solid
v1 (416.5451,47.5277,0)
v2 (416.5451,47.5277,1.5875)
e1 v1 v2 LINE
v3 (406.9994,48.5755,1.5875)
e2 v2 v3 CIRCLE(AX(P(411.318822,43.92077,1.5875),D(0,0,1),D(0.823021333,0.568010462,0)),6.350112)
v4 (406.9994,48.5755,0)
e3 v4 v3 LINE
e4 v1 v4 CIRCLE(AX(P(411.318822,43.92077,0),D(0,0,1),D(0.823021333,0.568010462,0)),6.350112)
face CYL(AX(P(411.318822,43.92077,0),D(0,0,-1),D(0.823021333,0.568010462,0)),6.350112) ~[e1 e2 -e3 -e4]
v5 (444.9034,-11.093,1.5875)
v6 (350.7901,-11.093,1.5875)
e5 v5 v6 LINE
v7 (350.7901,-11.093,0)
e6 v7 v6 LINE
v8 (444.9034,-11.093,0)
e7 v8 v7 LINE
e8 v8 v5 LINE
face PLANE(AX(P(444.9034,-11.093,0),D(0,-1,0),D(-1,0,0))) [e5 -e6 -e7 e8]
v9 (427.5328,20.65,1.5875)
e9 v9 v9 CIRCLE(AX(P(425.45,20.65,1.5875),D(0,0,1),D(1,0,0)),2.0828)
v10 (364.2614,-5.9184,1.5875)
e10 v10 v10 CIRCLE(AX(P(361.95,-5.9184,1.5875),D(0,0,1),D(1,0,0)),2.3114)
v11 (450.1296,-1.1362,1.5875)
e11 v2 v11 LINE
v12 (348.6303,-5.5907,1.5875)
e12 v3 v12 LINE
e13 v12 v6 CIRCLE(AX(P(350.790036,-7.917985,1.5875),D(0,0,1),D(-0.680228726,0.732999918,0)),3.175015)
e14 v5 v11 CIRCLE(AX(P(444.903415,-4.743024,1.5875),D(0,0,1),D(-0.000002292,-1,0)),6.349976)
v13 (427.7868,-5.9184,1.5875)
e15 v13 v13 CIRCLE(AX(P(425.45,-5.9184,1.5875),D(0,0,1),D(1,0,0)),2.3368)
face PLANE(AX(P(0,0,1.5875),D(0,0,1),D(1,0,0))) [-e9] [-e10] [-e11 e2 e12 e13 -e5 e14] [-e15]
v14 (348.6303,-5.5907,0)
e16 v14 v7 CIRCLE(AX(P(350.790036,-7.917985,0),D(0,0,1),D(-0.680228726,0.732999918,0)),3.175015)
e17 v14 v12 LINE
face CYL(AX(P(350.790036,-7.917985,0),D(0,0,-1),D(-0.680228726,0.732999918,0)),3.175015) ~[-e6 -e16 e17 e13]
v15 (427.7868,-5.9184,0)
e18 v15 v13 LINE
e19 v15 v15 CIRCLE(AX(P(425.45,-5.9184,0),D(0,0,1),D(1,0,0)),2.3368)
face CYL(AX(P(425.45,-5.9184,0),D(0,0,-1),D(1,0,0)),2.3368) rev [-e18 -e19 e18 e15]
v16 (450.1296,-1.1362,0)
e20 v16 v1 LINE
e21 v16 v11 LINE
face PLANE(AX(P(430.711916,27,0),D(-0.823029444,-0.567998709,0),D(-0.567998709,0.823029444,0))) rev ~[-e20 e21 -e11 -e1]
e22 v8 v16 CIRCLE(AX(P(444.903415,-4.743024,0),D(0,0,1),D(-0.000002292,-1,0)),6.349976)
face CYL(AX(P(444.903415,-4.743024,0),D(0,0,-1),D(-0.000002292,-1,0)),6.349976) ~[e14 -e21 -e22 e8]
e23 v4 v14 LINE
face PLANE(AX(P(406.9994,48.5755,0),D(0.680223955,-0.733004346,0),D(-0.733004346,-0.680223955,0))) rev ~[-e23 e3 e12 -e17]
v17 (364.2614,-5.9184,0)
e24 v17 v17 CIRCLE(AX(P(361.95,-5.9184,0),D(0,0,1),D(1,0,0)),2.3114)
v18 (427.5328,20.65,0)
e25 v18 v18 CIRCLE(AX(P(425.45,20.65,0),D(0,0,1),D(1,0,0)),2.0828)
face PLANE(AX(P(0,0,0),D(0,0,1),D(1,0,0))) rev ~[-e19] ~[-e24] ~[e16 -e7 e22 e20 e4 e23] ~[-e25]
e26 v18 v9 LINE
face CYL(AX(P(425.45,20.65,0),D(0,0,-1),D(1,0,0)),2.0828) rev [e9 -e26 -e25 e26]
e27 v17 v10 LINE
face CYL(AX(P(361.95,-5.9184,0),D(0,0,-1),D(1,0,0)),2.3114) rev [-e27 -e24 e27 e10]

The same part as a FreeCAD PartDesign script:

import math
import FreeCAD as App
import Part
import Sketcher

V = App.Vector
Q = App.Units.Quantity

doc = App.newDocument("Part")
body = doc.addObject("PartDesign::Body", "Body")

# Sketch on XY plane
sketch1 = doc.addObject("Sketcher::SketchObject", "Sketch")
body.addObject(sketch1)
sketch1.AttachmentSupport = (doc.XY_Plane, [""])
sketch1.MapMode = "FlatFace"
sketch1.addGeometry([
    Part.ArcOfCircle(Part.Circle(V(411.3, 43.9, 0), V(0, 0, 1), 6.3), math.radians(35), math.radians(133)),  # 0
    Part.LineSegment(V(407, 48.6, 0), V(348.6, -5.6, 0)),  # 1
    Part.ArcOfCircle(Part.Circle(V(350.8, -7.9, 0), V(0, 0, 1), 3.2), math.radians(133), math.radians(270)),  # 2
    Part.LineSegment(V(350.8, -11.1, 0), V(444.9, -11.1, 0)),  # 3
    Part.ArcOfCircle(Part.Circle(V(444.9, -4.7, 0), V(0, 0, 1), 6.3), math.radians(-90), math.radians(35)),  # 4
    Part.LineSegment(V(450.1, -1.1, 0), V(416.5, 47.5, 0)),  # 5
    Part.Circle(V(361.9, -5.9, 0), V(0, 0, 1), 2.3),  # 6
    Part.Circle(V(425.4, 20.6, 0), V(0, 0, 1), 2.1),  # 7
], False)
sketch1.addConstraint([
    Sketcher.Constraint("Tangent", 0, 2, 1, 1),
    Sketcher.Constraint("Tangent", 1, 2, 2, 1),
    Sketcher.Constraint("Tangent", 2, 2, 3, 1),
    Sketcher.Constraint("Tangent", 3, 2, 4, 1),
    Sketcher.Constraint("Tangent", 4, 2, 5, 1),
    Sketcher.Constraint("Tangent", 5, 2, 0, 1),
    Sketcher.Constraint("Horizontal", 3),
    Sketcher.Constraint("Equal", 0, 4),
    Sketcher.Constraint("Radius", 0, Q("0.25 in")),
    Sketcher.Constraint("Radius", 2, Q("0.125 in")),
    Sketcher.Constraint("Diameter", 6, Q("0.182 in")),
    Sketcher.Constraint("Diameter", 7, Q("0.164 in")),
    Sketcher.Constraint("DistanceX", 6, 3, 7, 3, Q("2.5 in")),
    Sketcher.Constraint("DistanceX", -1, 1, 6, 3, Q("14.25 in")),
    Sketcher.Constraint("Angle", 1, Q("-137.1389 deg")),
    Sketcher.Constraint("Angle", 5, Q("124.6108 deg")),
    Sketcher.Constraint("DistanceY", 2, 2, 6, 3, Q("5.1747 mm")),
    Sketcher.Constraint("DistanceY", 6, 3, -1, 1, Q("0.233 in")),
    Sketcher.Constraint("DistanceY", -1, 1, 7, 3, Q("0.813 in")),
    Sketcher.Constraint("DistanceX", 1, 2, 0, 2, Q("2.298 in")),
    Sketcher.Constraint("DistanceX", -1, 1, 0, 2, Q("16.0236 in")),
])
pad1 = doc.addObject("PartDesign::Pad", "Pad")
body.addObject(pad1)
pad1.Profile = sketch1
pad1.Length = Q("0.0625 in")

# Sketch on XY plane
sketch2 = doc.addObject("Sketcher::SketchObject", "Sketch001")
body.addObject(sketch2)
sketch2.AttachmentSupport = (doc.XY_Plane, [""])
sketch2.MapMode = "FlatFace"
sketch2.addGeometry(Part.Circle(V(425.4, -5.9, 0), V(0, 0, 1), 2.3), False)
sketch2.addConstraint([
    Sketcher.Constraint("Diameter", 0, Q("0.184 in")),
    Sketcher.Constraint("DistanceX", -1, 1, 0, 3, Q("16.75 in")),
    Sketcher.Constraint("DistanceY", 0, 3, -1, 1, Q("0.233 in")),
])
pocket1 = doc.addObject("PartDesign::Pocket", "Pocket")
body.addObject(pocket1)
pocket1.Profile = sketch2
pocket1.Length = Q("0.0625 in")
pocket1.Reversed = True

doc.recompute()
